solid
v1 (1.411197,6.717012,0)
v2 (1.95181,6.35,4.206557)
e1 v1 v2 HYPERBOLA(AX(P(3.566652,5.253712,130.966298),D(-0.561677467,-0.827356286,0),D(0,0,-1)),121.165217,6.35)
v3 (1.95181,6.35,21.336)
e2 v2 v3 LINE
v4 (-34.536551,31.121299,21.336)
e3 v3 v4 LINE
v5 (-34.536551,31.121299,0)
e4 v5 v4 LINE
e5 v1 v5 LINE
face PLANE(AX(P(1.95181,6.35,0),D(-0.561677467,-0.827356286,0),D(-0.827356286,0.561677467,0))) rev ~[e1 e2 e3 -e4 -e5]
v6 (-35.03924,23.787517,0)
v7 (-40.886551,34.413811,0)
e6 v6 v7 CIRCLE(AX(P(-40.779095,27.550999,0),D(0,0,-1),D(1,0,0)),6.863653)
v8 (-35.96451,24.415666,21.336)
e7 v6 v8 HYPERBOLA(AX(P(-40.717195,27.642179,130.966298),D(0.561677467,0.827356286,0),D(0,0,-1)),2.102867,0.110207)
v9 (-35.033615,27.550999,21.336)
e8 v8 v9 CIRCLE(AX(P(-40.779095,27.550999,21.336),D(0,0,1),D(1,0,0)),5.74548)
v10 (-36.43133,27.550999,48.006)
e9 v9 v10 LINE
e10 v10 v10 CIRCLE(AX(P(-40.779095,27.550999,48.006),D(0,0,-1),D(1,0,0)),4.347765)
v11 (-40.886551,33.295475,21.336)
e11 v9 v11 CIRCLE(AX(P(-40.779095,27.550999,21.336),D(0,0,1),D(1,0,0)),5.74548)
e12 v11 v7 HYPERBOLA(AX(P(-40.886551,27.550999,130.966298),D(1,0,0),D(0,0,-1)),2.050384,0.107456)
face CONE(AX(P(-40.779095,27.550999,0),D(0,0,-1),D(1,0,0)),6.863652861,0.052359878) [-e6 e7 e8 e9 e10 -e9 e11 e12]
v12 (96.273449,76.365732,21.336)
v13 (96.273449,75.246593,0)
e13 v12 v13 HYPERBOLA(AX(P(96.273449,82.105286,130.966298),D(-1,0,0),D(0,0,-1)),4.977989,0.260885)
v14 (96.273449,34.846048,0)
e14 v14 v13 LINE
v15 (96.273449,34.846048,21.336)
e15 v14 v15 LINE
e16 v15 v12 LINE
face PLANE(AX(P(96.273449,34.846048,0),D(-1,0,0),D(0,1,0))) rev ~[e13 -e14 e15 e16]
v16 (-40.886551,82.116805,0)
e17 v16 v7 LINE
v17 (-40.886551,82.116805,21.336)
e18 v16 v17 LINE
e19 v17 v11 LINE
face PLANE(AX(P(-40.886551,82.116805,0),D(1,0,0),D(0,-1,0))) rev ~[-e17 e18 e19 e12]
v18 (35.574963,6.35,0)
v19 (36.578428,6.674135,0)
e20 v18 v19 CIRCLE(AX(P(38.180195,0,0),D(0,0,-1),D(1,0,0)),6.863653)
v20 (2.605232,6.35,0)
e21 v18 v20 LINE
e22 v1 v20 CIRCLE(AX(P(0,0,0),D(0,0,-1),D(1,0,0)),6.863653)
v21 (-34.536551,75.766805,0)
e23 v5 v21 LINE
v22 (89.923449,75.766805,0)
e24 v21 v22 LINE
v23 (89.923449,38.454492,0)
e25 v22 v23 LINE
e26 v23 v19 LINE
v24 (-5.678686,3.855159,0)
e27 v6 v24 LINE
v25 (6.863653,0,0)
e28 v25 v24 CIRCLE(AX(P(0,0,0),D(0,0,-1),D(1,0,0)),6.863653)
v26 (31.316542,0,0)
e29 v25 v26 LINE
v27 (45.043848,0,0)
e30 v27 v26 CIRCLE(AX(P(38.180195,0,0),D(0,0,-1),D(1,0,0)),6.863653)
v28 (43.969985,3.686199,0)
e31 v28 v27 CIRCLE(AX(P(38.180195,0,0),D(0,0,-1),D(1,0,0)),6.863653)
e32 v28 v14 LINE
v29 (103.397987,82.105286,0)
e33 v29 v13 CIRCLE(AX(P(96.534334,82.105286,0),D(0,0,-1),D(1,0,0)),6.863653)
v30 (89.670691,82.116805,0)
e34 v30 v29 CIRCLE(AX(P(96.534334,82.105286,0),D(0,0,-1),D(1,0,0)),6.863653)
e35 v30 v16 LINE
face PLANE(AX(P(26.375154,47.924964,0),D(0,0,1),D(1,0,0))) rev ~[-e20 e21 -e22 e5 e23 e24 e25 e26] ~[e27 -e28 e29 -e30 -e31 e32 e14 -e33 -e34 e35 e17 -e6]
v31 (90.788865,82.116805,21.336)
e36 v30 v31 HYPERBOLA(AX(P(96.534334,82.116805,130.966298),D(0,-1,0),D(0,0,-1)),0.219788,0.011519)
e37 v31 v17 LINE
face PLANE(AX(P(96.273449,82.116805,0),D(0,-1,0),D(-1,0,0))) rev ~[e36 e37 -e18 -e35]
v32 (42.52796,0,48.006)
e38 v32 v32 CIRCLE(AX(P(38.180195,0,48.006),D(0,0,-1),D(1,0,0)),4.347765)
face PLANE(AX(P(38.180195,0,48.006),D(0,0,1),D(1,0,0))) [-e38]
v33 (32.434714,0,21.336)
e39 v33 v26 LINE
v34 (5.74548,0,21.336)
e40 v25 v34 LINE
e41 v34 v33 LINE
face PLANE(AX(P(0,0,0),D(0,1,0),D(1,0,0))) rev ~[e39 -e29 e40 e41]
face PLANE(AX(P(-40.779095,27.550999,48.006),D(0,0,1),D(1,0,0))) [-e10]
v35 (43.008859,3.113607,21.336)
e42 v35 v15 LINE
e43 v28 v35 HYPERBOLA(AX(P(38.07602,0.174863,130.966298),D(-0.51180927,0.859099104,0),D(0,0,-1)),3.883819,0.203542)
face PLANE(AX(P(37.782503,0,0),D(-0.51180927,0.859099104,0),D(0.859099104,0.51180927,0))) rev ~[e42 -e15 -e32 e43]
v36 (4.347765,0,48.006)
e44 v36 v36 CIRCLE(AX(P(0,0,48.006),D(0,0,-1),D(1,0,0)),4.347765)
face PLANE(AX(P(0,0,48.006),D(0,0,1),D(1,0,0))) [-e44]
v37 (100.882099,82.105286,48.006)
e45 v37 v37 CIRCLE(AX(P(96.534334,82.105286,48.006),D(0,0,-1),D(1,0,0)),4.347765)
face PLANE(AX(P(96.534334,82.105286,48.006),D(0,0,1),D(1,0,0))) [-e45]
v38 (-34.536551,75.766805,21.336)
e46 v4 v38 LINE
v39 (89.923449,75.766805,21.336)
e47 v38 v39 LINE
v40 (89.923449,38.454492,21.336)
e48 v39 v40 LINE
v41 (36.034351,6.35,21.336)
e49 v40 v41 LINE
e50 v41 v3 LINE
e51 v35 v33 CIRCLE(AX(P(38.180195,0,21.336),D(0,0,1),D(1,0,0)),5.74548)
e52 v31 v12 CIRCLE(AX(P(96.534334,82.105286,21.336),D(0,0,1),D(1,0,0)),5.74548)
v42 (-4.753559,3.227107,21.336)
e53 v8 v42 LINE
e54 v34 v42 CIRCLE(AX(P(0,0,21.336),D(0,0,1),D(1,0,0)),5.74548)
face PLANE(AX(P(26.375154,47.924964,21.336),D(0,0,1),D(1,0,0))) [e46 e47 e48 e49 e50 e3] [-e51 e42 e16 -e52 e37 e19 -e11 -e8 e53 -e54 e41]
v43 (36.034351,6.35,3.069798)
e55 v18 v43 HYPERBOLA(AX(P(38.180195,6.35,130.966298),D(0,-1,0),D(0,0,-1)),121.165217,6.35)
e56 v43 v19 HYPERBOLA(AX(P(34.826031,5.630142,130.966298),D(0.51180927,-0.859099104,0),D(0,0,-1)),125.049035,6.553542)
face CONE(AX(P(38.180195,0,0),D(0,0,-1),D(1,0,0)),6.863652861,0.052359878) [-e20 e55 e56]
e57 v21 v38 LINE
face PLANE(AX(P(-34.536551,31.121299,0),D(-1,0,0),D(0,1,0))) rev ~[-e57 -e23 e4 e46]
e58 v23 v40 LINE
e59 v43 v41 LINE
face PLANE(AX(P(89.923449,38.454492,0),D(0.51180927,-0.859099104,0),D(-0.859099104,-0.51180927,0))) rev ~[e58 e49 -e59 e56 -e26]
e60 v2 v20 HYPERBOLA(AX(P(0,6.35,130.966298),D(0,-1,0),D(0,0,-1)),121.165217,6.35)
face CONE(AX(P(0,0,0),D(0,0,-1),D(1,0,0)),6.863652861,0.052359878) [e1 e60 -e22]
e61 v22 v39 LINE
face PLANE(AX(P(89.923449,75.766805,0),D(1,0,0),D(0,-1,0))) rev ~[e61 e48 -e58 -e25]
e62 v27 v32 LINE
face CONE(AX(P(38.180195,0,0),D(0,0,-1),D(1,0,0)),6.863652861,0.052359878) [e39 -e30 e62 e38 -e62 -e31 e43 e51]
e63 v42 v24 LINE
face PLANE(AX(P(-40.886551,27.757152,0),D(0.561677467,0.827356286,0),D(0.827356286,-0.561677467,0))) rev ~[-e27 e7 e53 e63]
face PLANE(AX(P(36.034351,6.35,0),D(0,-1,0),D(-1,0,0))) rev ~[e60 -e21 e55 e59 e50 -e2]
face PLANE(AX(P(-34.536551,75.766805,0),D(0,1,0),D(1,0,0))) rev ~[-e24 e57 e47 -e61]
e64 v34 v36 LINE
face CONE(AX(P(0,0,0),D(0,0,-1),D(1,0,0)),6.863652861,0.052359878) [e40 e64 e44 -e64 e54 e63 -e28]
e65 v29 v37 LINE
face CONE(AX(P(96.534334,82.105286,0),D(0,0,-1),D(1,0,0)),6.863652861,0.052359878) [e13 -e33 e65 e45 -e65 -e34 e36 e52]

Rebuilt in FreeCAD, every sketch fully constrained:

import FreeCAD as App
import Part
import Sketcher

V = App.Vector
Q = App.Units.Quantity


def add_polygon(sketch, points):
    """Adds a closed chain of lines whose ends are joined by coincident constraints."""
    first, n = sketch.GeometryCount, len(points)
    for a, b in zip(points, points[1:] + points[:1]):
        sketch.addGeometry(Part.LineSegment(App.Vector(*a, 0), App.Vector(*b, 0)), False)
    for i in range(n):
        sketch.addConstraint(Sketcher.Constraint("Coincident", first + i, 2, first + (i + 1) % n, 1))

doc = App.newDocument("Part")
body = doc.addObject("PartDesign::Body", "Body")

# Sketch on XY plane
sketch1 = doc.addObject("Sketcher::SketchObject", "Sketch")
body.addObject(sketch1)
sketch1.AttachmentSupport = (doc.XY_Plane, [""])
sketch1.MapMode = "FlatFace"
add_polygon(sketch1, [(96.273449, 82.116805), (-40.886551, 82.116805), (-40.886551, 27.757152), (0, 0), (37.782503, 0), (96.273449, 34.846048)])  # lines 0-5
add_polygon(sketch1, [(-34.536551, 75.766805), (89.923449, 75.766805), (89.923449, 38.454492), (36.034351, 6.35), (1.95181, 6.35), (-34.536551, 31.121299)])  # lines 6-11
sketch1.addConstraint(Sketcher.Constraint("Horizontal", 0))
sketch1.addConstraint(Sketcher.Constraint("Vertical", 1))
sketch1.addConstraint(Sketcher.Constraint("Horizontal", 3))
sketch1.addConstraint(Sketcher.Constraint("Vertical", 5))
sketch1.addConstraint(Sketcher.Constraint("Horizontal", 6))
sketch1.addConstraint(Sketcher.Constraint("Vertical", 7))
sketch1.addConstraint(Sketcher.Constraint("Horizontal", 9))
sketch1.addConstraint(Sketcher.Constraint("Vertical", 11))
sketch1.addConstraint(Sketcher.Constraint("Coincident", 2, 2, -1, 1))
sketch1.addConstraint(Sketcher.Constraint("Parallel", 4, 8))
sketch1.addConstraint(Sketcher.Constraint("Parallel", 2, 10))
sketch1.addConstraint(Sketcher.Constraint("DistanceX", 0, 2, 0, 1, Q("5.4 in")))
sketch1.addConstraint(Sketcher.Constraint("DistanceX", 6, 1, 6, 2, Q("4.9 in")))
sketch1.addConstraint(Sketcher.Constraint("DistanceY", -1, 1, 8, 2, Q("0.25 in")))
sketch1.addConstraint(Sketcher.Constraint("DistanceX", 6, 2, 5, 2, Q("0.25 in")))
sketch1.addConstraint(Sketcher.Constraint("DistanceY", 6, 2, 5, 2, Q("0.25 in")))
sketch1.addConstraint(Sketcher.Constraint("DistanceX", 3, 1, 3, 2, Q("1.4875001 in")))
sketch1.addConstraint(Sketcher.Constraint("DistanceX", 9, 2, 9, 1, 34.082541))
sketch1.addConstraint(Sketcher.Constraint("DistanceY", -1, 1, 10, 2, 31.121299))
sketch1.addConstraint(Sketcher.Constraint("DistanceX", 8, 2, 7, 2, 53.889098))
sketch1.addConstraint(Sketcher.Constraint("Distance", 4, 68.084049))
sketch1.addConstraint(Sketcher.Constraint("DistanceY", 1, 2, 1, 1, 54.359653))
sketch1.addConstraint(Sketcher.Constraint("DistanceY", 5, 1, 5, 2, 47.270757))
pad1 = doc.addObject("PartDesign::Pad", "Pad")
body.addObject(pad1)
pad1.Profile = sketch1
pad1.Length = Q("0.84 in")

# Sketch on XY plane
sketch2 = doc.addObject("Sketcher::SketchObject", "Sketch001")
body.addObject(sketch2)
sketch2.AttachmentSupport = (doc.XY_Plane, [""])
sketch2.MapMode = "FlatFace"
sketch2.addGeometry(Part.Circle(V(0, 0, 0), V(0, 0, 1), 6.863653), False)
sketch2.addGeometry(Part.Circle(V(38.180195, 0, 0), V(0, 0, 1), 6.863653), False)
sketch2.addGeometry(Part.Circle(V(96.534334, 82.105286, 0), V(0, 0, 1), 6.863653), False)
sketch2.addGeometry(Part.Circle(V(-40.779095, 27.550999, 0), V(0, 0, 1), 6.863653), False)
sketch2.addConstraint(Sketcher.Constraint("Coincident", 0, 3, -1, 1))
sketch2.addConstraint(Sketcher.Constraint("Equal", 0, 1))
sketch2.addConstraint(Sketcher.Constraint("Equal", 1, 2))
sketch2.addConstraint(Sketcher.Constraint("Equal", 2, 3))
sketch2.addConstraint(Sketcher.Constraint("PointOnObject", 1, 3, -1))
sketch2.addConstraint(Sketcher.Constraint("Diameter", 0, 13.727306))
sketch2.addConstraint(Sketcher.Constraint("DistanceY", -1, 1, 3, 3, 27.550999))
sketch2.addConstraint(Sketcher.Constraint("DistanceX", 1, 3, 2, 3, 58.354139))
sketch2.addConstraint(Sketcher.Constraint("DistanceX", 3, 3, 1, 3, 78.95929))
sketch2.addConstraint(Sketcher.Constraint("DistanceX", -1, 1, 1, 3, 38.180195))
sketch2.addConstraint(Sketcher.Constraint("DistanceY", -1, 1, 2, 3, 82.105286))
pad2 = doc.addObject("PartDesign::Pad", "Pad001")
body.addObject(pad2)
pad2.Profile = sketch2
pad2.Length = Q("1.89 in")
pad2.TaperAngle = -3

doc.recompute()
